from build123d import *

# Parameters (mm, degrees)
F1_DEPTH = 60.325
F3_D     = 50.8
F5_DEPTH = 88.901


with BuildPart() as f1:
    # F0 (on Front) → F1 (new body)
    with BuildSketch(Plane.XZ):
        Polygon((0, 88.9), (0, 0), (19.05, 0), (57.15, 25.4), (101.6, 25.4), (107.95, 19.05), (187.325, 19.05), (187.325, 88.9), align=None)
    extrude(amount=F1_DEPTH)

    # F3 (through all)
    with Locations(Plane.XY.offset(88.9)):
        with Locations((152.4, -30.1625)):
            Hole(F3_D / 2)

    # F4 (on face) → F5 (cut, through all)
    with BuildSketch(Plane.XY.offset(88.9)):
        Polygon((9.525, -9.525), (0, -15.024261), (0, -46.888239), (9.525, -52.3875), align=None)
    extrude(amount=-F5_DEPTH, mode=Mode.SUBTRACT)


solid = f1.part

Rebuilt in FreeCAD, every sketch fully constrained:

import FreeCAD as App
import Part
import Sketcher
from FreeCAD import Vector
Q = App.Units.Quantity

doc = App.newDocument("Part")
body = doc.addObject("PartDesign::Body", "Body")

# Sketch on XZ plane
sketch1 = body.newObject("Sketcher::SketchObject", "Sketch")
sketch1.AttachmentSupport = (doc.getObject("XZ_Plane"), [""])
sketch1.MapMode = "FlatFace"
sketch1.addGeometry([
    Part.LineSegment(Vector(0, 89, 0), Vector(0, 0, 0)),  # 0
    Part.LineSegment(Vector(0, 0, 0), Vector(19, 0, 0)),  # 1
    Part.LineSegment(Vector(19, 0, 0), Vector(57, 25, 0)),  # 2
    Part.LineSegment(Vector(57, 25, 0), Vector(102, 25, 0)),  # 3
    Part.LineSegment(Vector(102, 25, 0), Vector(108, 19, 0)),  # 4
    Part.LineSegment(Vector(108, 19, 0), Vector(187, 19, 0)),  # 5
    Part.LineSegment(Vector(187, 19, 0), Vector(187, 89, 0)),  # 6
    Part.LineSegment(Vector(187, 89, 0), Vector(0, 89, 0)),  # 7
], False)
sketch1.addConstraint([
    Sketcher.Constraint("Coincident", 0, 2, 1, 1),
    Sketcher.Constraint("Coincident", 1, 2, 2, 1),
    Sketcher.Constraint("Coincident", 2, 2, 3, 1),
    Sketcher.Constraint("Coincident", 3, 2, 4, 1),
    Sketcher.Constraint("Coincident", 4, 2, 5, 1),
    Sketcher.Constraint("Coincident", 5, 2, 6, 1),
    Sketcher.Constraint("Coincident", 6, 2, 7, 1),
    Sketcher.Constraint("Coincident", 7, 2, 0, 1),
    Sketcher.Constraint("Vertical", 0),
    Sketcher.Constraint("Horizontal", 1),
    Sketcher.Constraint("Horizontal", 3),
    Sketcher.Constraint("Horizontal", 5),
    Sketcher.Constraint("Vertical", 6),
    Sketcher.Constraint("Horizontal", 7),
    Sketcher.Constraint("Coincident", 0, 2, -1, 1),
    Sketcher.Constraint("DistanceY", 0, 2, 0, 1, Q("3.5 in")),
    Sketcher.Constraint("DistanceY", -1, 1, 2, 2, Q("1 in")),
    Sketcher.Constraint("DistanceX", -1, 1, 3, 2, Q("4 in")),
    Sketcher.Constraint("Angle", 4, Q("-45 deg")),
    Sketcher.Constraint("DistanceX", 2, 2, 4, 2, Q("2 in")),
    Sketcher.Constraint("DistanceX", 1, 1, 1, 2, Q("0.75 in")),
    Sketcher.Constraint("DistanceX", 3, 1, 3, 2, Q("1.75 in")),
    Sketcher.Constraint("DistanceX", 5, 1, 5, 2, Q("3.125 in")),
])
pad1 = body.newObject("PartDesign::Pad", "Pad")
pad1.Profile = sketch1
pad1.Length = Q("2.375 in")

# Sketch on XY plane
sketch2 = body.newObject("Sketcher::SketchObject", "Sketch001")
sketch2.AttachmentSupport = (doc.getObject("XY_Plane"), [""])
sketch2.MapMode = "FlatFace"
sketch2.AttachmentOffset = App.Placement(Vector(0, 0, 3.5 * 25.4), App.Rotation())
sketch2.addGeometry(Part.Circle(Vector(152, -30, 0), Vector(0, 0, 1), 25), False)
sketch2.addConstraint([
    Sketcher.Constraint("Diameter", 0, Q("2 in")),
    Sketcher.Constraint("DistanceX", -1, 1, 0, 3, Q("6 in")),
    Sketcher.Constraint("DistanceY", 0, 3, -1, 1, Q("1.1875 in")),
])
doc.recompute()
hole = body.newObject("PartDesign::Hole", "Hole")
hole.Profile = sketch2
hole.ThreadType = "None"
hole.Diameter = Q("2 in")
hole.DepthType = "ThroughAll"

# Sketch on XY plane
sketch3 = body.newObject("Sketcher::SketchObject", "Sketch002")
sketch3.AttachmentSupport = (doc.getObject("XY_Plane"), [""])
sketch3.MapMode = "FlatFace"
sketch3.AttachmentOffset = App.Placement(Vector(0, 0, 3.5 * 25.4), App.Rotation())
sketch3.addGeometry([
    Part.LineSegment(Vector(10, -10, 0), Vector(0, -15, 0)),
    Part.LineSegment(Vector(0, -15, 0), Vector(0, -47, 0)),
    Part.LineSegment(Vector(0, -47, 0), Vector(10, -52, 0)),
    Part.LineSegment(Vector(10, -52, 0), Vector(10, -10, 0)),
], False)
sketch3.addConstraint([
    Sketcher.Constraint("Coincident", 0, 2, 1, 1),
    Sketcher.Constraint("Coincident", 1, 2, 2, 1),
    Sketcher.Constraint("Coincident", 2, 2, 3, 1),
    Sketcher.Constraint("Coincident", 3, 2, 0, 1),
    Sketcher.Constraint("Vertical", 1),
    Sketcher.Constraint("Vertical", 3),
    Sketcher.Constraint("PointOnObject", 0, 2, -2),
    Sketcher.Constraint("Equal", 0, 2),
    Sketcher.Constraint("Angle", 0, Q("-150.000001 deg")),
    Sketcher.Constraint("DistanceY", 3, 1, 3, 2, Q("1.6875 in")),
    Sketcher.Constraint("DistanceX", -1, 1, 2, 2, Q("0.375 in")),
    Sketcher.Constraint("DistanceY", 2, 2, -1, 1, Q("2.0625 in")),
])
pocket1 = body.newObject("PartDesign::Pocket", "Pocket")
pocket1.Profile = sketch3
pocket1.Type = "ThroughAll"

doc.recompute()
